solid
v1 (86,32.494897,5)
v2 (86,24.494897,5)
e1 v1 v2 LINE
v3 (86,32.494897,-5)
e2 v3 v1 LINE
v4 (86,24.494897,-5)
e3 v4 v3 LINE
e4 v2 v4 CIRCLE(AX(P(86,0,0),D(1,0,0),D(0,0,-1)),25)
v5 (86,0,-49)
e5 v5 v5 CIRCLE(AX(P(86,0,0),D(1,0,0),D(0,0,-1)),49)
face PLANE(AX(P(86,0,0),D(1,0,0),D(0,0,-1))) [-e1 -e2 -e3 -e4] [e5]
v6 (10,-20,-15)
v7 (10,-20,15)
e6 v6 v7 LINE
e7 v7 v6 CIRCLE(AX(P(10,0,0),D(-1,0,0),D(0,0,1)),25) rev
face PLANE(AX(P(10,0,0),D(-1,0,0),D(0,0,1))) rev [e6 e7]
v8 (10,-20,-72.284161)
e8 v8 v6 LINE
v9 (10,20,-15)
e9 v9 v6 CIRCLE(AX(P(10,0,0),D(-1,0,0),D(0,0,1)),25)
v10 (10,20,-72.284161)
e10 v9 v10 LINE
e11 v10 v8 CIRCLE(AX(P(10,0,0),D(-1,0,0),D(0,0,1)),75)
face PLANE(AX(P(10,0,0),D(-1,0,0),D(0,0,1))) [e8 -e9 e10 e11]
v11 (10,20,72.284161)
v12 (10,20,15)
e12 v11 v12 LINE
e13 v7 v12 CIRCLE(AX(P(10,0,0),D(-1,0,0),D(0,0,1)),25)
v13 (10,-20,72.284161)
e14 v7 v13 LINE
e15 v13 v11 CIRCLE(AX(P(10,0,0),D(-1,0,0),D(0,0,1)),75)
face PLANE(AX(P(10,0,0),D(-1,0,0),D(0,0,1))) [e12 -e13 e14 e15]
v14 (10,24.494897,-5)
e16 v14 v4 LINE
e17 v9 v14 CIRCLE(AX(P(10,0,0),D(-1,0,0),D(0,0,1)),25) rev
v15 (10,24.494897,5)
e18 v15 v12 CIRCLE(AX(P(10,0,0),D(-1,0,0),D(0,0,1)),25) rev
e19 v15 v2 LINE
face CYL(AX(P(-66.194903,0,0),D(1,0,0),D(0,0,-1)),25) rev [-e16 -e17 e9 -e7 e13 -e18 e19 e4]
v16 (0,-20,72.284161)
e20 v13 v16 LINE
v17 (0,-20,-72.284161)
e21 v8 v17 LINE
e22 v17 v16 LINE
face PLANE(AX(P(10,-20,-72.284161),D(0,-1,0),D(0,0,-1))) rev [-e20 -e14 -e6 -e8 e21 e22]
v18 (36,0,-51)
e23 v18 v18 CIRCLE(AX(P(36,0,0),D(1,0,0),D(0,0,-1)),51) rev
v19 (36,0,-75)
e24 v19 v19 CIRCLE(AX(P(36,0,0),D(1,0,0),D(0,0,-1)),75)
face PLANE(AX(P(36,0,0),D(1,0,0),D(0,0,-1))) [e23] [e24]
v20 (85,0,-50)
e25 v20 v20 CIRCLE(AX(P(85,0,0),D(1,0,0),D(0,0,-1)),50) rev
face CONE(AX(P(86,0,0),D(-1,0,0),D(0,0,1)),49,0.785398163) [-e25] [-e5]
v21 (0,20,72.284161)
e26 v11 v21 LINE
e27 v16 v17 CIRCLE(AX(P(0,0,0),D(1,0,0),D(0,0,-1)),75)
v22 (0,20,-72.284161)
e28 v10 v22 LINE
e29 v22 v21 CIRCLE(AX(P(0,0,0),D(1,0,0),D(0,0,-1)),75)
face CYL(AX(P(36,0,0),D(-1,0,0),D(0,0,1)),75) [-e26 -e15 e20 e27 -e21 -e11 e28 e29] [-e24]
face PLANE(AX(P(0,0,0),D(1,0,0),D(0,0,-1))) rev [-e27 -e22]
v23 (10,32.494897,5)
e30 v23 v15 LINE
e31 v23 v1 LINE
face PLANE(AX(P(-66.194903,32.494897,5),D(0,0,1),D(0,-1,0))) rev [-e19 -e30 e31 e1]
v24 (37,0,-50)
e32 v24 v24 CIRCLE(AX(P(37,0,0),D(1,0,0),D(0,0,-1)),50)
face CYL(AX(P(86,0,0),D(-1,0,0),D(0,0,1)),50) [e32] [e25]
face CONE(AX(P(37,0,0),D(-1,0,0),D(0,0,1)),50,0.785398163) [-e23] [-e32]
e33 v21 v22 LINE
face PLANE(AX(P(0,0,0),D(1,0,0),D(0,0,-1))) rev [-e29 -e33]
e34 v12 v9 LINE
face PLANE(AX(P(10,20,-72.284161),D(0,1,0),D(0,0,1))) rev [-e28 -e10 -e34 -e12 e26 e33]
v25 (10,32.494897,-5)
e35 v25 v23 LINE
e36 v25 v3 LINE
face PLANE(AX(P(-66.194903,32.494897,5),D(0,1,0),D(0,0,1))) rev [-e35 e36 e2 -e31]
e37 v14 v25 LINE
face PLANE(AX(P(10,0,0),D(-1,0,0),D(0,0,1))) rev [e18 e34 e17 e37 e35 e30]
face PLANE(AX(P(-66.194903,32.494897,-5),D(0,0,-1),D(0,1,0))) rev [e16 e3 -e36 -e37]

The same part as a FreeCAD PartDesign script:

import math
import FreeCAD as App
import Part
import Sketcher
Q = App.Units.Quantity


def edges_at(feature, points):
    """Names of the edges that pass closest to the given points."""
    edges = feature.Shape.Edges
    near = lambda p: min(range(len(edges)), key=lambda i: edges[i].distToShape(Part.Vertex(*p))[0])
    return sorted({f"Edge{near(p) + 1}" for p in points})

doc = App.newDocument("Part")
body = doc.addObject("PartDesign::Body", "Body")

# Sketch on YZ plane
sketch1 = doc.addObject("Sketcher::SketchObject", "Sketch")
body.addObject(sketch1)
sketch1.AttachmentSupport = (doc.YZ_Plane, [""])
sketch1.MapMode = "FlatFace"
sketch1.addGeometry(Part.Circle(App.Vector(0, 0, 0), App.Vector(0, 0, 1), 75), False)
sketch1.addConstraint(Sketcher.Constraint("Coincident", 0, 3, -1, 1))
sketch1.addConstraint(Sketcher.Constraint("Diameter", 0, Q("150 mm")))
pad1 = doc.addObject("PartDesign::Pad", "Pad")
body.addObject(pad1)
pad1.Profile = sketch1
pad1.Length = 36

# Sketch on YZ plane
sketch2 = doc.addObject("Sketcher::SketchObject", "Sketch001")
body.addObject(sketch2)
sketch2.AttachmentSupport = (doc.YZ_Plane, [""])
sketch2.MapMode = "FlatFace"
sketch2.AttachmentOffset = App.Placement(App.Vector(0, 0, 36), App.Rotation())
sketch2.addGeometry(Part.Circle(App.Vector(0, 0, 0), App.Vector(0, 0, 1), 50), False)
sketch2.addConstraint(Sketcher.Constraint("Coincident", 0, 3, -1, 1))
sketch2.addConstraint(Sketcher.Constraint("Diameter", 0, Q("100 mm")))
pad2 = doc.addObject("PartDesign::Pad", "Pad001")
body.addObject(pad2)
pad2.Profile = sketch2
pad2.Length = 50

# Sketch on YZ plane
sketch3 = doc.addObject("Sketcher::SketchObject", "Sketch002")
body.addObject(sketch3)
sketch3.AttachmentSupport = (doc.YZ_Plane, [""])
sketch3.MapMode = "FlatFace"
sketch3.addGeometry(Part.LineSegment(App.Vector(20, 72, 0), App.Vector(20, -72, 0)), False)
sketch3.addGeometry(Part.ArcOfCircle(Part.Circle(App.Vector(0, 0, 0), App.Vector(0, 0, 1), 75), math.radians(-105), math.radians(-75)), False)
sketch3.addGeometry(Part.LineSegment(App.Vector(-20, -72, 0), App.Vector(-20, 72, 0)), False)
sketch3.addGeometry(Part.ArcOfCircle(Part.Circle(App.Vector(0, 0, 0), App.Vector(0, 0, 1), 75), math.radians(75), math.radians(105)), False)
sketch3.addConstraint(Sketcher.Constraint("Coincident", 0, 2, 1, 2))
sketch3.addConstraint(Sketcher.Constraint("Coincident", 1, 1, 2, 1))
sketch3.addConstraint(Sketcher.Constraint("Coincident", 2, 2, 3, 2))
sketch3.addConstraint(Sketcher.Constraint("Coincident", 3, 1, 0, 1))
sketch3.addConstraint(Sketcher.Constraint("Vertical", 0))
sketch3.addConstraint(Sketcher.Constraint("Vertical", 2))
sketch3.addConstraint(Sketcher.Constraint("Coincident", 1, 3, -1, 1))
sketch3.addConstraint(Sketcher.Constraint("Coincident", 3, 3, -1, 1))
sketch3.addConstraint(Sketcher.Constraint("Equal", 1, 3))
sketch3.addConstraint(Sketcher.Constraint("Horizontal", 0, 2, 1, 1))
sketch3.addConstraint(Sketcher.Constraint("Radius", 1, Q("75 mm")))
sketch3.addConstraint(Sketcher.Constraint("DistanceX", -1, 1, 0, 2, Q("20 mm")))
pocket1 = doc.addObject("PartDesign::Pocket", "Pocket")
body.addObject(pocket1)
pocket1.Profile = sketch3
pocket1.Length = 10
pocket1.Reversed = True

# Sketch on YZ plane
sketch4 = doc.addObject("Sketcher::SketchObject", "Sketch003")
body.addObject(sketch4)
sketch4.AttachmentSupport = (doc.YZ_Plane, [""])
sketch4.MapMode = "FlatFace"
sketch4.AttachmentOffset = App.Placement(App.Vector(0, 0, 86), App.Rotation())
sketch4.addGeometry(Part.LineSegment(App.Vector(32, -5, 0), App.Vector(32, 5, 0)), False)
sketch4.addGeometry(Part.LineSegment(App.Vector(32, 5, 0), App.Vector(24, 5, 0)), False)
sketch4.addGeometry(Part.ArcOfCircle(Part.Circle(App.Vector(0, 0, 0), App.Vector(0, 0, 1), 25), math.radians(12), math.radians(348)), False)
sketch4.addGeometry(Part.LineSegment(App.Vector(24, -5, 0), App.Vector(32, -5, 0)), False)
sketch4.addConstraint(Sketcher.Constraint("Coincident", 0, 2, 1, 1))
sketch4.addConstraint(Sketcher.Constraint("Coincident", 1, 2, 2, 1))
sketch4.addConstraint(Sketcher.Constraint("Coincident", 2, 2, 3, 1))
sketch4.addConstraint(Sketcher.Constraint("Coincident", 3, 2, 0, 1))
sketch4.addConstraint(Sketcher.Constraint("Vertical", 0))
sketch4.addConstraint(Sketcher.Constraint("Horizontal", 1))
sketch4.addConstraint(Sketcher.Constraint("Horizontal", 3))
sketch4.addConstraint(Sketcher.Constraint("Coincident", 2, 3, -1, 1))
sketch4.addConstraint(Sketcher.Constraint("Vertical", 1, 2, 2, 2))
sketch4.addConstraint(Sketcher.Constraint("Radius", 2, Q("25 mm")))
sketch4.addConstraint(Sketcher.Constraint("DistanceX", 1, 2, 1, 1, Q("8 mm")))
sketch4.addConstraint(Sketcher.Constraint("DistanceY", 0, 1, 0, 2, Q("10 mm")))
pocket2 = doc.addObject("PartDesign::Pocket", "Pocket001")
body.addObject(pocket2)
pocket2.Profile = sketch4
pocket2.Length = 76
doc.recompute()

chamfer = doc.addObject("PartDesign::Chamfer", "Chamfer")
body.addObject(chamfer)
chamfer.Base = (pocket2, edges_at(pocket2, [(86, 0, 50)]))
chamfer.Size = 1
doc.recompute()

chamfer2 = doc.addObject("PartDesign::Chamfer", "Chamfer001")
body.addObject(chamfer2)
chamfer2.Base = (chamfer, edges_at(chamfer, [(36, 0, 50)]))
chamfer2.Size = 1

doc.recompute()
